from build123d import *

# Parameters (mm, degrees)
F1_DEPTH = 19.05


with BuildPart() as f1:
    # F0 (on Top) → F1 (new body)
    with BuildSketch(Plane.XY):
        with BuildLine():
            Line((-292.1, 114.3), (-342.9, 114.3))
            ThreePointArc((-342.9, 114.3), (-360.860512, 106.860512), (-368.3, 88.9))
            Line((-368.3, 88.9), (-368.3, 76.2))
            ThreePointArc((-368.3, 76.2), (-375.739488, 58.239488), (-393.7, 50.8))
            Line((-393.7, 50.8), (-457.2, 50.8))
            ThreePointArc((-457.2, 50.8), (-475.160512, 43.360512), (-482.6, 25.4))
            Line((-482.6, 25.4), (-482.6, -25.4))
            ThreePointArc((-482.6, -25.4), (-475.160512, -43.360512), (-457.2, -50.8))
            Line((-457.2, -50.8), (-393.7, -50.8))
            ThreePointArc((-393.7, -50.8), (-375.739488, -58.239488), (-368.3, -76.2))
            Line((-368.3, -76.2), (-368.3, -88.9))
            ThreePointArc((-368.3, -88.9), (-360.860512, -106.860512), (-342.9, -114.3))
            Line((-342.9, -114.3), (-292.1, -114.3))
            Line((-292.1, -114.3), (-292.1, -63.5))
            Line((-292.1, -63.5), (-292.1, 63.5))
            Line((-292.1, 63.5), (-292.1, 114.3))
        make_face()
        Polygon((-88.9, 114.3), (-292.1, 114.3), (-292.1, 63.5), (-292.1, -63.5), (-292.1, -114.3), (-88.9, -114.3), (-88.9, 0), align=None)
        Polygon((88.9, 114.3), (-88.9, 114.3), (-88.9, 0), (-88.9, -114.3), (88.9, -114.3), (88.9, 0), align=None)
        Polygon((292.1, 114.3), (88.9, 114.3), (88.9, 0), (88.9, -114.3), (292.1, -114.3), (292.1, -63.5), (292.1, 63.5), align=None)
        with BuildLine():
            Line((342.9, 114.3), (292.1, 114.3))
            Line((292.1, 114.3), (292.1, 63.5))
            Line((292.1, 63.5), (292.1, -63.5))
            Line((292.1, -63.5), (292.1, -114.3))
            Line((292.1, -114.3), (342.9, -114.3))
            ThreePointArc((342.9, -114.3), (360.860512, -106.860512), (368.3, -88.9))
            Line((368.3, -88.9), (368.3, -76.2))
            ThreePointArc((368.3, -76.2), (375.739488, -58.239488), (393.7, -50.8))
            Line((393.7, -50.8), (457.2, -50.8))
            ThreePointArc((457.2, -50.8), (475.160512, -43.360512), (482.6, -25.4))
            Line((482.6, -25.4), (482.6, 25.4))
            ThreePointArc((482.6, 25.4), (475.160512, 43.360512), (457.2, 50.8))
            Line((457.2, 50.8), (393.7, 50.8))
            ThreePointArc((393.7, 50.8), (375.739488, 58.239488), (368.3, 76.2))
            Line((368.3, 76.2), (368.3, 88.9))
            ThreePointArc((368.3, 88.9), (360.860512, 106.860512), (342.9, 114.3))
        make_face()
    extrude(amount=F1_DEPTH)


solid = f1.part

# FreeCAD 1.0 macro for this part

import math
import FreeCAD as App
import Part
import Sketcher

V = App.Vector
Q = App.Units.Quantity

doc = App.newDocument("Part")
body = doc.addObject("PartDesign::Body", "Body")

# Sketch on XY plane
sketch1 = doc.addObject("Sketcher::SketchObject", "Sketch")
body.addObject(sketch1)
sketch1.AttachmentSupport = (doc.XY_Plane, [""])
sketch1.MapMode = "FlatFace"
sketch1.addGeometry([
    Part.ArcOfCircle(Part.Circle(V(-343, 89, 0), V(0, 0, 1), 25), math.radians(90), math.radians(180)),  # 0
    Part.LineSegment(V(-368, 89, 0), V(-368, 76, 0)),  # 1
    Part.ArcOfCircle(Part.Circle(V(-394, 76, 0), V(0, 0, 1), 25), math.radians(-90), math.radians(0)),  # 2
    Part.LineSegment(V(-394, 51, 0), V(-457, 51, 0)),  # 3
    Part.ArcOfCircle(Part.Circle(V(-457, 25, 0), V(0, 0, 1), 25), math.radians(90), math.radians(180)),  # 4
    Part.LineSegment(V(-483, 25, 0), V(-483, -25, 0)),  # 5
    Part.ArcOfCircle(Part.Circle(V(-457, -25, 0), V(0, 0, 1), 25), math.radians(-180), math.radians(-90)),  # 6
    Part.LineSegment(V(-457, -51, 0), V(-394, -51, 0)),  # 7
    Part.ArcOfCircle(Part.Circle(V(-394, -76, 0), V(0, 0, 1), 25), math.radians(0), math.radians(90)),  # 8
    Part.LineSegment(V(-368, -76, 0), V(-368, -89, 0)),  # 9
    Part.ArcOfCircle(Part.Circle(V(-343, -89, 0), V(0, 0, 1), 25), math.radians(-180), math.radians(-90)),  # 10
    Part.LineSegment(V(-343, -114, 0), V(343, -114, 0)),  # 11
    Part.ArcOfCircle(Part.Circle(V(343, -89, 0), V(0, 0, 1), 25), math.radians(-90), math.radians(0)),  # 12
    Part.LineSegment(V(368, -89, 0), V(368, -76, 0)),  # 13
    Part.ArcOfCircle(Part.Circle(V(394, -76, 0), V(0, 0, 1), 25), math.radians(90), math.radians(180)),  # 14
    Part.LineSegment(V(394, -51, 0), V(457, -51, 0)),  # 15
    Part.ArcOfCircle(Part.Circle(V(457, -25, 0), V(0, 0, 1), 25), math.radians(-90), math.radians(0)),  # 16
    Part.LineSegment(V(483, -25, 0), V(483, 25, 0)),  # 17
    Part.ArcOfCircle(Part.Circle(V(457, 25, 0), V(0, 0, 1), 25), math.radians(0), math.radians(90)),  # 18
    Part.LineSegment(V(457, 51, 0), V(394, 51, 0)),  # 19
    Part.ArcOfCircle(Part.Circle(V(394, 76, 0), V(0, 0, 1), 25), math.radians(-180), math.radians(-90)),  # 20
    Part.LineSegment(V(368, 76, 0), V(368, 89, 0)),  # 21
    Part.ArcOfCircle(Part.Circle(V(343, 89, 0), V(0, 0, 1), 25), math.radians(0), math.radians(90)),  # 22
    Part.LineSegment(V(343, 114, 0), V(-343, 114, 0)),  # 23
], False)
sketch1.addConstraint([
    Sketcher.Constraint("Tangent", 0, 2, 1, 1),
    Sketcher.Constraint("Tangent", 1, 2, 2, 2),
    Sketcher.Constraint("Tangent", 2, 1, 3, 1),
    Sketcher.Constraint("Tangent", 3, 2, 4, 1),
    Sketcher.Constraint("Tangent", 4, 2, 5, 1),
    Sketcher.Constraint("Tangent", 5, 2, 6, 1),
    Sketcher.Constraint("Tangent", 6, 2, 7, 1),
    Sketcher.Constraint("Tangent", 7, 2, 8, 2),
    Sketcher.Constraint("Tangent", 8, 1, 9, 1),
    Sketcher.Constraint("Tangent", 9, 2, 10, 1),
    Sketcher.Constraint("Tangent", 10, 2, 11, 1),
    Sketcher.Constraint("Tangent", 11, 2, 12, 1),
    Sketcher.Constraint("Tangent", 12, 2, 13, 1),
    Sketcher.Constraint("Tangent", 13, 2, 14, 2),
    Sketcher.Constraint("Tangent", 14, 1, 15, 1),
    Sketcher.Constraint("Tangent", 15, 2, 16, 1),
    Sketcher.Constraint("Tangent", 16, 2, 17, 1),
    Sketcher.Constraint("Tangent", 17, 2, 18, 1),
    Sketcher.Constraint("Tangent", 18, 2, 19, 1),
    Sketcher.Constraint("Tangent", 19, 2, 20, 2),
    Sketcher.Constraint("Tangent", 20, 1, 21, 1),
    Sketcher.Constraint("Tangent", 21, 2, 22, 1),
    Sketcher.Constraint("Tangent", 22, 2, 23, 1),
    Sketcher.Constraint("Tangent", 23, 2, 0, 1),
    Sketcher.Constraint("Vertical", 1),
    Sketcher.Constraint("Horizontal", 3),
    Sketcher.Constraint("Vertical", 5),
    Sketcher.Constraint("Horizontal", 7),
    Sketcher.Constraint("Vertical", 9),
    Sketcher.Constraint("Horizontal", 11),
    Sketcher.Constraint("Vertical", 13),
    Sketcher.Constraint("Horizontal", 15),
    Sketcher.Constraint("Vertical", 17),
    Sketcher.Constraint("Horizontal", 19),
    Sketcher.Constraint("Vertical", 21),
    Sketcher.Constraint("Horizontal", 23),
    Sketcher.Constraint("Equal", 0, 2),
    Sketcher.Constraint("Equal", 2, 4),
    Sketcher.Constraint("Equal", 4, 6),
    Sketcher.Constraint("Equal", 6, 8),
    Sketcher.Constraint("Equal", 8, 10),
    Sketcher.Constraint("Equal", 10, 12),
    Sketcher.Constraint("Equal", 12, 14),
    Sketcher.Constraint("Equal", 14, 16),
    Sketcher.Constraint("Equal", 16, 18),
    Sketcher.Constraint("Equal", 18, 20),
    Sketcher.Constraint("Equal", 20, 22),
    Sketcher.Constraint("Symmetric", 0, 3, 12, 3, -1, 1),
    Sketcher.Constraint("Symmetric", 4, 3, 16, 3, -1, 1),
    Sketcher.Constraint("Symmetric", 8, 3, 20, 3, -1, 1),
    Sketcher.Constraint("Symmetric", 8, 3, 14, 3, -2),
    Sketcher.Constraint("Radius", 0, Q("1 in")),
    Sketcher.Constraint("DistanceX", 11, 1, 11, 2, Q("27 in")),
    Sketcher.Constraint("DistanceY", 5, 2, 5, 1, Q("2 in")),
    Sketcher.Constraint("DistanceX", 3, 2, 3, 1, Q("2.5 in")),
    Sketcher.Constraint("DistanceY", 1, 2, 1, 1, Q("0.5 in")),
])
pad1 = doc.addObject("PartDesign::Pad", "Pad")
body.addObject(pad1)
pad1.Profile = sketch1
pad1.Length = Q("0.75 in")

doc.recompute()
